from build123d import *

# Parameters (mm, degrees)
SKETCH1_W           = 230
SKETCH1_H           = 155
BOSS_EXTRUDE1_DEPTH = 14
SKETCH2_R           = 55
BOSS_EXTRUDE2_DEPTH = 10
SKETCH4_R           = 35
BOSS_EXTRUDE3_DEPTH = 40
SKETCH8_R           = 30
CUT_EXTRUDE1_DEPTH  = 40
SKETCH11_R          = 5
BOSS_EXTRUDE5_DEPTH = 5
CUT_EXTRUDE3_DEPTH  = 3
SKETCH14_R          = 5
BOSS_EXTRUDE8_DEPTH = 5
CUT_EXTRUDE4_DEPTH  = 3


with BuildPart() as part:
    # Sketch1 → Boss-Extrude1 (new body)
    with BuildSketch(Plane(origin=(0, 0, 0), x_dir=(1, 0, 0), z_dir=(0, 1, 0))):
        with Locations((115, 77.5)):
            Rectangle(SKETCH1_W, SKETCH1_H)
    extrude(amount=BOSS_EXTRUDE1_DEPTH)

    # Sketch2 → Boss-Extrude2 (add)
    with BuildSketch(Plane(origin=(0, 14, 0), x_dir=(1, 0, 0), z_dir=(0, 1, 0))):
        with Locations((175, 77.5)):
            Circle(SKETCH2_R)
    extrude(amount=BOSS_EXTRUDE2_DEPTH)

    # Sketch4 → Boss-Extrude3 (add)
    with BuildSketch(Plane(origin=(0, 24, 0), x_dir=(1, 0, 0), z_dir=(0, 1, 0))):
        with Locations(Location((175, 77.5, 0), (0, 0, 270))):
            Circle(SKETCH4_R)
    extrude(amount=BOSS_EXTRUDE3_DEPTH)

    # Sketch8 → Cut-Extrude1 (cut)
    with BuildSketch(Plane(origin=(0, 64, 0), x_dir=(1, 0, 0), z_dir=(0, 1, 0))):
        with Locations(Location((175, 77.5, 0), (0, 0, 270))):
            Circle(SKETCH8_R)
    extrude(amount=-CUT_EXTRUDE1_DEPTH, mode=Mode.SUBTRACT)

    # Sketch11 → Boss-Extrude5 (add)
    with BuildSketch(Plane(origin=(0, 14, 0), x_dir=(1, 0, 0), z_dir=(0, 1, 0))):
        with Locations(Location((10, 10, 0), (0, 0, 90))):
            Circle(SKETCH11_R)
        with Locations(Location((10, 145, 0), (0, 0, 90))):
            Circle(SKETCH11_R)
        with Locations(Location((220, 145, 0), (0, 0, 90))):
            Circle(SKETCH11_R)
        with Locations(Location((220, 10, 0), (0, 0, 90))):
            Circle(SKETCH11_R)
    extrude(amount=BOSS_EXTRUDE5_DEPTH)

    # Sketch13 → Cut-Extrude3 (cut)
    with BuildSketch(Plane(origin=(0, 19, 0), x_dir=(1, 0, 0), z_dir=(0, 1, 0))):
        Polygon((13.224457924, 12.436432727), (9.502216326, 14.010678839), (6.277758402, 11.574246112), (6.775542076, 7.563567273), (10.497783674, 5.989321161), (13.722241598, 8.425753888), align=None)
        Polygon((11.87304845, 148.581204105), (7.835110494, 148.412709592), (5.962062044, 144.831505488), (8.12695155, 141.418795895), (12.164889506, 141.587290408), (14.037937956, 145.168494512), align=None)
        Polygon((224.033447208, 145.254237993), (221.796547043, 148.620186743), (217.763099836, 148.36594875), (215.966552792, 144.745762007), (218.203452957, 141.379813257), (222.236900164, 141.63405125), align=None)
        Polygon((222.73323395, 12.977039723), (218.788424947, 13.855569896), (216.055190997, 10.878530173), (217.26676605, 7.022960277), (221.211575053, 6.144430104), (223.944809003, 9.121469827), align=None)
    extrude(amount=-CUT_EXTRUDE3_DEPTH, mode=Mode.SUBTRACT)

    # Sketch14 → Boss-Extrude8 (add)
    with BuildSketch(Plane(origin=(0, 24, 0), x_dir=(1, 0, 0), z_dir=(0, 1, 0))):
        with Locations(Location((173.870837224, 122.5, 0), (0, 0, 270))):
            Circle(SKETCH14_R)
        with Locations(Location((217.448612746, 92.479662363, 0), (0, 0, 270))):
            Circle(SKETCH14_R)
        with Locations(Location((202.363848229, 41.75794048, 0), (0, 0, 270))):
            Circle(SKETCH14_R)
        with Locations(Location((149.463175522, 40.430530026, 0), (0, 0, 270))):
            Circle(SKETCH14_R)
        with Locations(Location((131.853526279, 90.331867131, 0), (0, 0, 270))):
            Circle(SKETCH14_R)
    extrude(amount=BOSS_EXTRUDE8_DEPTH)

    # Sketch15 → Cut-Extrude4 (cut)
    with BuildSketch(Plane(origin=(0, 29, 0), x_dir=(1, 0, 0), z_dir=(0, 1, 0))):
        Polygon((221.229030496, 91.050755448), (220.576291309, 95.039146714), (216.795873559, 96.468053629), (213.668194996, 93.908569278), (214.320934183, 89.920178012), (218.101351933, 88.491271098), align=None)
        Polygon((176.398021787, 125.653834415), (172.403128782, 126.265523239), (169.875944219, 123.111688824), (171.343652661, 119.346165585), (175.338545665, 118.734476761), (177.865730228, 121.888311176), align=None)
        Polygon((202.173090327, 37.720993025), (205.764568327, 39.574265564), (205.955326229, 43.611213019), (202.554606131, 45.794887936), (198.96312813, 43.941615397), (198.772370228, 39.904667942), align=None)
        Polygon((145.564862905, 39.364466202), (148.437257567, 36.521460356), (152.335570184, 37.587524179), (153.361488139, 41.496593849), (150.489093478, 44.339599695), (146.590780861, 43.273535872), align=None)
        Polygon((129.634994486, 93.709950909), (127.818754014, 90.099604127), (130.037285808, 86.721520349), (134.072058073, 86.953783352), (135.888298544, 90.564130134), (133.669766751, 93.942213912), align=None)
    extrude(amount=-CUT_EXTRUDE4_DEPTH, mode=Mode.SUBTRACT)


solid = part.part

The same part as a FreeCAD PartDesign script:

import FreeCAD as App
import Part
import Sketcher
from FreeCAD import Vector
Q = App.Units.Quantity

doc = App.newDocument("Part")
params = doc.addObject("Spreadsheet::Sheet", "Params")
for row, (alias, value) in enumerate([
    ("sketch1_width", "230 mm"),
    ("sketch1_height", "155 mm"),
    ("pad1_length", "14 mm"),
    ("sketch2_diameter", "110 mm"),
    ("pad2_length", "10 mm"),
    ("sketch3_diameter", "70 mm"),
    ("pad3_length", "40 mm"),
    ("sketch4_diameter", "60 mm"),
    ("pocket1_length", "40 mm"),
    ("sketch5_diameter", "10 mm"),
    ("pad4_length", "5 mm"),
    ("pocket2_length", "3 mm"),
    ("sketch7_diameter", "10 mm"),
    ("pad5_length", "5 mm"),
    ("pocket3_length", "3 mm"),
], start=1):
    params.set(f"A{row}", alias)
    params.set(f"B{row}", "=" + value)
    params.setAlias(f"B{row}", alias)

body = doc.addObject("PartDesign::Body", "Body")

# Sketch on XZ plane
sketch1 = body.newObject("Sketcher::SketchObject", "Sketch")
sketch1.AttachmentSupport = (doc.getObject("XZ_Plane"), [""])
sketch1.MapMode = "FlatFace"
sketch1.addGeometry([
    Part.LineSegment(Vector(0, -155, 0), Vector(0, 0, 0)),
    Part.LineSegment(Vector(0, 0, 0), Vector(230, 0, 0)),
    Part.LineSegment(Vector(230, 0, 0), Vector(230, -155, 0)),
    Part.LineSegment(Vector(230, -155, 0), Vector(0, -155, 0)),
], False)
sketch1.addConstraint([
    Sketcher.Constraint("Coincident", 0, 2, 1, 1),
    Sketcher.Constraint("Coincident", 1, 2, 2, 1),
    Sketcher.Constraint("Coincident", 2, 2, 3, 1),
    Sketcher.Constraint("Coincident", 3, 2, 0, 1),
    Sketcher.Constraint("Vertical", 0),
    Sketcher.Constraint("Horizontal", 1),
    Sketcher.Constraint("Vertical", 2),
    Sketcher.Constraint("Horizontal", 3),
    Sketcher.Constraint("Coincident", 0, 2, -1, 1),
    Sketcher.Constraint("DistanceX", 1, 1, 1, 2, Q("230 mm")),
    Sketcher.Constraint("DistanceY", 0, 1, 0, 2, Q("155 mm")),
])
sketch1.setExpression("Constraints[9]", "Params.sketch1_width")
sketch1.setExpression("Constraints[10]", "Params.sketch1_height")
pad1 = body.newObject("PartDesign::Pad", "Pad")
pad1.Profile = sketch1
pad1.setExpression("Length", "Params.pad1_length")
pad1.Reversed = True

# Sketch on XZ plane
sketch2 = body.newObject("Sketcher::SketchObject", "Sketch001")
sketch2.AttachmentSupport = (doc.getObject("XZ_Plane"), [""])
sketch2.MapMode = "FlatFace"
sketch2.AttachmentOffset = App.Placement(Vector(0, 0, -14), App.Rotation())
sketch2.addGeometry(Part.Circle(Vector(175, -78, 0), Vector(0, 0, 1), 55), False)
sketch2.addConstraint([
    Sketcher.Constraint("Diameter", 0, Q("110 mm")),
    Sketcher.Constraint("DistanceX", -1, 1, 0, 3, Q("175 mm")),
    Sketcher.Constraint("DistanceY", 0, 3, -1, 1, Q("77.5 mm")),
])
sketch2.setExpression("Constraints[0]", "Params.sketch2_diameter")
pad2 = body.newObject("PartDesign::Pad", "Pad001")
pad2.Profile = sketch2
pad2.setExpression("Length", "Params.pad2_length")
pad2.Reversed = True

# Sketch on XZ plane
sketch3 = body.newObject("Sketcher::SketchObject", "Sketch002")
sketch3.AttachmentSupport = (doc.getObject("XZ_Plane"), [""])
sketch3.MapMode = "FlatFace"
sketch3.AttachmentOffset = App.Placement(Vector(0, 0, -24), App.Rotation())
sketch3.addGeometry(Part.Circle(Vector(175, -78, 0), Vector(0, 0, 1), 35), False)
sketch3.addConstraint([
    Sketcher.Constraint("Diameter", 0, Q("70 mm")),
    Sketcher.Constraint("DistanceX", -1, 1, 0, 3, Q("175 mm")),
    Sketcher.Constraint("DistanceY", 0, 3, -1, 1, Q("77.5 mm")),
])
sketch3.setExpression("Constraints[0]", "Params.sketch3_diameter")
pad3 = body.newObject("PartDesign::Pad", "Pad002")
pad3.Profile = sketch3
pad3.setExpression("Length", "Params.pad3_length")
pad3.Reversed = True

# Sketch on XZ plane
sketch4 = body.newObject("Sketcher::SketchObject", "Sketch003")
sketch4.AttachmentSupport = (doc.getObject("XZ_Plane"), [""])
sketch4.MapMode = "FlatFace"
sketch4.AttachmentOffset = App.Placement(Vector(0, 0, -64), App.Rotation())
sketch4.addGeometry(Part.Circle(Vector(175, -78, 0), Vector(0, 0, 1), 30), False)
sketch4.addConstraint([
    Sketcher.Constraint("Diameter", 0, Q("60 mm")),
    Sketcher.Constraint("DistanceX", -1, 1, 0, 3, Q("175 mm")),
    Sketcher.Constraint("DistanceY", 0, 3, -1, 1, Q("77.5 mm")),
])
sketch4.setExpression("Constraints[0]", "Params.sketch4_diameter")
pocket1 = body.newObject("PartDesign::Pocket", "Pocket")
pocket1.Profile = sketch4
pocket1.setExpression("Length", "Params.pocket1_length")
pocket1.Reversed = True

# Sketch on XZ plane
sketch5 = body.newObject("Sketcher::SketchObject", "Sketch004")
sketch5.AttachmentSupport = (doc.getObject("XZ_Plane"), [""])
sketch5.MapMode = "FlatFace"
sketch5.AttachmentOffset = App.Placement(Vector(0, 0, -14), App.Rotation())
sketch5.addGeometry([
    Part.Circle(Vector(10, -10, 0), Vector(0, 0, 1), 5),
    Part.Circle(Vector(10, -145, 0), Vector(0, 0, 1), 5),
    Part.Circle(Vector(220, -145, 0), Vector(0, 0, 1), 5),
    Part.Circle(Vector(220, -10, 0), Vector(0, 0, 1), 5),
], False)
sketch5.addConstraint([
    Sketcher.Constraint("Equal", 0, 1),
    Sketcher.Constraint("Equal", 1, 2),
    Sketcher.Constraint("Equal", 2, 3),
    Sketcher.Constraint("Horizontal", 1, 3, 2, 3),
    Sketcher.Constraint("Horizontal", 0, 3, 3, 3),
    Sketcher.Constraint("Vertical", 0, 3, 1, 3),
    Sketcher.Constraint("Vertical", 2, 3, 3, 3),
    Sketcher.Constraint("Diameter", 0, Q("10 mm")),
    Sketcher.Constraint("DistanceX", -1, 1, 0, 3, Q("10 mm")),
    Sketcher.Constraint("DistanceY", 0, 3, -1, 1, Q("10 mm")),
    Sketcher.Constraint("DistanceY", 1, 3, -1, 1, Q("145 mm")),
    Sketcher.Constraint("DistanceX", -1, 1, 2, 3, Q("220 mm")),
])
sketch5.setExpression("Constraints[7]", "Params.sketch5_diameter")
pad4 = body.newObject("PartDesign::Pad", "Pad003")
pad4.Profile = sketch5
pad4.setExpression("Length", "Params.pad4_length")
pad4.Reversed = True

# Sketch on XZ plane
sketch6 = body.newObject("Sketcher::SketchObject", "Sketch005")
sketch6.AttachmentSupport = (doc.getObject("XZ_Plane"), [""])
sketch6.MapMode = "FlatFace"
sketch6.AttachmentOffset = App.Placement(Vector(0, 0, -19), App.Rotation())
sketch6.addGeometry([
    Part.LineSegment(Vector(13.2, -12.4, 0), Vector(9.5, -14, 0)),  # 0
    Part.LineSegment(Vector(9.5, -14, 0), Vector(6.3, -11.6, 0)),  # 1
    Part.LineSegment(Vector(6.3, -11.6, 0), Vector(6.8, -7.6, 0)),  # 2
    Part.LineSegment(Vector(6.8, -7.6, 0), Vector(10.5, -6, 0)),  # 3
    Part.LineSegment(Vector(10.5, -6, 0), Vector(13.7, -8.4, 0)),  # 4
    Part.LineSegment(Vector(13.7, -8.4, 0), Vector(13.2, -12.4, 0)),  # 5
    Part.LineSegment(Vector(11.9, -148.6, 0), Vector(7.8, -148.4, 0)),  # 6
    Part.LineSegment(Vector(7.8, -148.4, 0), Vector(6, -144.8, 0)),  # 7
    Part.LineSegment(Vector(6, -144.8, 0), Vector(8.1, -141.4, 0)),  # 8
    Part.LineSegment(Vector(8.1, -141.4, 0), Vector(12.2, -141.6, 0)),  # 9
    Part.LineSegment(Vector(12.2, -141.6, 0), Vector(14, -145.2, 0)),  # 10
    Part.LineSegment(Vector(14, -145.2, 0), Vector(11.9, -148.6, 0)),  # 11
    Part.LineSegment(Vector(224, -145.3, 0), Vector(221.8, -148.6, 0)),  # 12
    Part.LineSegment(Vector(221.8, -148.6, 0), Vector(217.8, -148.4, 0)),  # 13
    Part.LineSegment(Vector(217.8, -148.4, 0), Vector(216, -144.7, 0)),  # 14
    Part.LineSegment(Vector(216, -144.7, 0), Vector(218.2, -141.4, 0)),  # 15
    Part.LineSegment(Vector(218.2, -141.4, 0), Vector(222.2, -141.6, 0)),  # 16
    Part.LineSegment(Vector(222.2, -141.6, 0), Vector(224, -145.3, 0)),  # 17
    Part.LineSegment(Vector(222.7, -13, 0), Vector(218.8, -13.9, 0)),  # 18
    Part.LineSegment(Vector(218.8, -13.9, 0), Vector(216.1, -10.9, 0)),  # 19
    Part.LineSegment(Vector(216.1, -10.9, 0), Vector(217.3, -7, 0)),  # 20
    Part.LineSegment(Vector(217.3, -7, 0), Vector(221.2, -6.1, 0)),  # 21
    Part.LineSegment(Vector(221.2, -6.1, 0), Vector(223.9, -9.1, 0)),  # 22
    Part.LineSegment(Vector(223.9, -9.1, 0), Vector(222.7, -13, 0)),  # 23
], False)
sketch6.addConstraint([
    Sketcher.Constraint("Coincident", 0, 2, 1, 1),
    Sketcher.Constraint("Coincident", 1, 2, 2, 1),
    Sketcher.Constraint("Coincident", 2, 2, 3, 1),
    Sketcher.Constraint("Coincident", 3, 2, 4, 1),
    Sketcher.Constraint("Coincident", 4, 2, 5, 1),
    Sketcher.Constraint("Coincident", 5, 2, 0, 1),
    Sketcher.Constraint("Coincident", 6, 2, 7, 1),
    Sketcher.Constraint("Coincident", 7, 2, 8, 1),
    Sketcher.Constraint("Coincident", 8, 2, 9, 1),
    Sketcher.Constraint("Coincident", 9, 2, 10, 1),
    Sketcher.Constraint("Coincident", 10, 2, 11, 1),
    Sketcher.Constraint("Coincident", 11, 2, 6, 1),
    Sketcher.Constraint("Coincident", 12, 2, 13, 1),
    Sketcher.Constraint("Coincident", 13, 2, 14, 1),
    Sketcher.Constraint("Coincident", 14, 2, 15, 1),
    Sketcher.Constraint("Coincident", 15, 2, 16, 1),
    Sketcher.Constraint("Coincident", 16, 2, 17, 1),
    Sketcher.Constraint("Coincident", 17, 2, 12, 1),
    Sketcher.Constraint("Coincident", 18, 2, 19, 1),
    Sketcher.Constraint("Coincident", 19, 2, 20, 1),
    Sketcher.Constraint("Coincident", 20, 2, 21, 1),
    Sketcher.Constraint("Coincident", 21, 2, 22, 1),
    Sketcher.Constraint("Coincident", 22, 2, 23, 1),
    Sketcher.Constraint("Coincident", 23, 2, 18, 1),
    Sketcher.Constraint("Parallel", 0, 3),
    Sketcher.Constraint("Parallel", 1, 4),
    Sketcher.Constraint("Parallel", 2, 5),
    Sketcher.Constraint("Parallel", 6, 9),
    Sketcher.Constraint("Parallel", 7, 10),
    Sketcher.Constraint("Parallel", 8, 11),
    Sketcher.Constraint("Parallel", 12, 15),
    Sketcher.Constraint("Parallel", 13, 16),
    Sketcher.Constraint("Parallel", 14, 17),
    Sketcher.Constraint("Parallel", 18, 21),
    Sketcher.Constraint("Parallel", 19, 22),
    Sketcher.Constraint("Parallel", 20, 23),
    Sketcher.Constraint("Equal", 0, 1),
    Sketcher.Constraint("Equal", 1, 2),
    Sketcher.Constraint("Equal", 2, 3),
    Sketcher.Constraint("Equal", 5, 6),
    Sketcher.Constraint("Equal", 6, 7),
    Sketcher.Constraint("Equal", 7, 8),
    Sketcher.Constraint("Equal", 8, 9),
    Sketcher.Constraint("Equal", 11, 12),
    Sketcher.Constraint("Equal", 12, 13),
    Sketcher.Constraint("Equal", 13, 14),
    Sketcher.Constraint("Equal", 14, 15),
    Sketcher.Constraint("Equal", 17, 18),
    Sketcher.Constraint("Equal", 18, 19),
    Sketcher.Constraint("Equal", 19, 20),
    Sketcher.Constraint("Equal", 20, 21),
    Sketcher.Constraint("DistanceX", -1, 1, 13, 2, Q("217.7631 mm")),
    Sketcher.Constraint("DistanceX", -1, 1, 16, 2, Q("222.2369 mm")),
    Sketcher.Constraint("DistanceX", 2, 2, 4, 2, Q("6.9467 mm")),
    Sketcher.Constraint("DistanceY", 10, 2, 8, 2, Q("3.749699 mm")),
    Sketcher.Constraint("DistanceX", 11, 2, 12, 2, Q("209.923499 mm")),
    Sketcher.Constraint("DistanceX", 14, 2, 15, 2, Q("2.2369 mm")),
    Sketcher.Constraint("DistanceY", 14, 2, 20, 2, Q("137.722802 mm")),
    Sketcher.Constraint("DistanceY", 19, 2, 21, 2, Q("4.7341 mm")),
    Sketcher.Constraint("Distance", 0, Q("4.041452 mm")),
    Sketcher.Constraint("DistanceY", 0, 2, -1, 1, Q("14.010679 mm")),
    Sketcher.Constraint("DistanceX", -1, 1, 1, 2, Q("6.277758 mm")),
    Sketcher.Constraint("DistanceY", 3, 2, -1, 1, Q("5.989321 mm")),
    Sketcher.Constraint("DistanceX", -1, 1, 4, 2, Q("13.722242 mm")),
    Sketcher.Constraint("DistanceX", -1, 1, 6, 2, Q("7.83511 mm")),
    Sketcher.Constraint("DistanceY", 6, 2, -1, 1, Q("148.41271 mm")),
    Sketcher.Constraint("DistanceX", -1, 1, 8, 2, Q("8.126952 mm")),
    Sketcher.Constraint("DistanceX", -1, 1, 9, 2, Q("12.16489 mm")),
    Sketcher.Constraint("DistanceY", 13, 2, -1, 1, Q("148.365949 mm")),
    Sketcher.Constraint("DistanceY", 18, 2, -1, 1, Q("13.85557 mm")),
    Sketcher.Constraint("DistanceX", -1, 1, 19, 2, Q("216.055191 mm")),
    Sketcher.Constraint("DistanceY", 19, 2, -1, 1, Q("10.87853 mm")),
])
pocket2 = body.newObject("PartDesign::Pocket", "Pocket001")
pocket2.Profile = sketch6
pocket2.setExpression("Length", "Params.pocket2_length")
pocket2.Reversed = True

# Sketch on XZ plane
sketch7 = body.newObject("Sketcher::SketchObject", "Sketch006")
sketch7.AttachmentSupport = (doc.getObject("XZ_Plane"), [""])
sketch7.MapMode = "FlatFace"
sketch7.AttachmentOffset = App.Placement(Vector(0, 0, -24), App.Rotation())
sketch7.addGeometry([
    Part.Circle(Vector(174, -122, 0), Vector(0, 0, 1), 5),  # 0
    Part.Circle(Vector(217, -92, 0), Vector(0, 0, 1), 5),  # 1
    Part.Circle(Vector(202, -42, 0), Vector(0, 0, 1), 5),  # 2
    Part.Circle(Vector(149, -40, 0), Vector(0, 0, 1), 5),  # 3
    Part.Circle(Vector(132, -90, 0), Vector(0, 0, 1), 5),  # 4
], False)
sketch7.addConstraint([
    Sketcher.Constraint("Equal", 0, 1),
    Sketcher.Constraint("Equal", 1, 2),
    Sketcher.Constraint("Equal", 2, 3),
    Sketcher.Constraint("Equal", 3, 4),
    Sketcher.Constraint("Diameter", 0, Q("10 mm")),
    Sketcher.Constraint("DistanceY", 0, 3, -1, 1, Q("122.5 mm")),
    Sketcher.Constraint("DistanceX", -1, 1, 2, 3, Q("202.363848 mm")),
    Sketcher.Constraint("DistanceY", 2, 3, -1, 1, Q("41.75794 mm")),
    Sketcher.Constraint("DistanceY", 3, 3, -1, 1, Q("40.43053 mm")),
    Sketcher.Constraint("DistanceY", 1, 3, 2, 3, Q("50.721722 mm")),
    Sketcher.Constraint("DistanceX", 0, 3, 2, 3, Q("28.493011 mm")),
    Sketcher.Constraint("DistanceX", 3, 3, 0, 3, Q("24.407662 mm")),
    Sketcher.Constraint("DistanceX", 4, 3, 0, 3, Q("42.017311 mm")),
    Sketcher.Constraint("DistanceX", -1, 1, 1, 3, Q("217.448613 mm")),
    Sketcher.Constraint("DistanceY", 4, 3, -1, 1, Q("90.331867 mm")),
])
sketch7.setExpression("Constraints[4]", "Params.sketch7_diameter")
pad5 = body.newObject("PartDesign::Pad", "Pad004")
pad5.Profile = sketch7
pad5.setExpression("Length", "Params.pad5_length")
pad5.Reversed = True

# Sketch on XZ plane
sketch8 = body.newObject("Sketcher::SketchObject", "Sketch007")
sketch8.AttachmentSupport = (doc.getObject("XZ_Plane"), [""])
sketch8.MapMode = "FlatFace"
sketch8.AttachmentOffset = App.Placement(Vector(0, 0, -29), App.Rotation())
sketch8.addGeometry([
    Part.LineSegment(Vector(221.2, -91.1, 0), Vector(220.6, -95, 0)),  # 0
    Part.LineSegment(Vector(220.6, -95, 0), Vector(216.8, -96.5, 0)),  # 1
    Part.LineSegment(Vector(216.8, -96.5, 0), Vector(213.7, -93.9, 0)),  # 2
    Part.LineSegment(Vector(213.7, -93.9, 0), Vector(214.3, -89.9, 0)),  # 3
    Part.LineSegment(Vector(214.3, -89.9, 0), Vector(218.1, -88.5, 0)),  # 4
    Part.LineSegment(Vector(218.1, -88.5, 0), Vector(221.2, -91.1, 0)),  # 5
    Part.LineSegment(Vector(176.4, -125.7, 0), Vector(172.4, -126.3, 0)),  # 6
    Part.LineSegment(Vector(172.4, -126.3, 0), Vector(169.9, -123.1, 0)),  # 7
    Part.LineSegment(Vector(169.9, -123.1, 0), Vector(171.3, -119.3, 0)),  # 8
    Part.LineSegment(Vector(171.3, -119.3, 0), Vector(175.3, -118.7, 0)),  # 9
    Part.LineSegment(Vector(175.3, -118.7, 0), Vector(177.9, -121.9, 0)),  # 10
    Part.LineSegment(Vector(177.9, -121.9, 0), Vector(176.4, -125.7, 0)),  # 11
    Part.LineSegment(Vector(202.2, -37.7, 0), Vector(205.8, -39.6, 0)),  # 12
    Part.LineSegment(Vector(205.8, -39.6, 0), Vector(206, -43.6, 0)),  # 13
    Part.LineSegment(Vector(206, -43.6, 0), Vector(202.6, -45.8, 0)),  # 14
    Part.LineSegment(Vector(202.6, -45.8, 0), Vector(199, -43.9, 0)),  # 15
    Part.LineSegment(Vector(199, -43.9, 0), Vector(198.8, -39.9, 0)),  # 16
    Part.LineSegment(Vector(198.8, -39.9, 0), Vector(202.2, -37.7, 0)),  # 17
    Part.LineSegment(Vector(145.6, -39.4, 0), Vector(148.4, -36.5, 0)),  # 18
    Part.LineSegment(Vector(148.4, -36.5, 0), Vector(152.3, -37.6, 0)),  # 19
    Part.LineSegment(Vector(152.3, -37.6, 0), Vector(153.4, -41.5, 0)),  # 20
    Part.LineSegment(Vector(153.4, -41.5, 0), Vector(150.5, -44.3, 0)),  # 21
    Part.LineSegment(Vector(150.5, -44.3, 0), Vector(146.6, -43.3, 0)),  # 22
    Part.LineSegment(Vector(146.6, -43.3, 0), Vector(145.6, -39.4, 0)),  # 23
    Part.LineSegment(Vector(129.6, -93.7, 0), Vector(127.8, -90.1, 0)),  # 24
    Part.LineSegment(Vector(127.8, -90.1, 0), Vector(130, -86.7, 0)),  # 25
    Part.LineSegment(Vector(130, -86.7, 0), Vector(134.1, -87, 0)),  # 26
    Part.LineSegment(Vector(134.1, -87, 0), Vector(135.9, -90.6, 0)),  # 27
    Part.LineSegment(Vector(135.9, -90.6, 0), Vector(133.7, -93.9, 0)),  # 28
    Part.LineSegment(Vector(133.7, -93.9, 0), Vector(129.6, -93.7, 0)),  # 29
], False)
sketch8.addConstraint([
    Sketcher.Constraint("Coincident", 0, 2, 1, 1),
    Sketcher.Constraint("Coincident", 1, 2, 2, 1),
    Sketcher.Constraint("Coincident", 2, 2, 3, 1),
    Sketcher.Constraint("Coincident", 3, 2, 4, 1),
    Sketcher.Constraint("Coincident", 4, 2, 5, 1),
    Sketcher.Constraint("Coincident", 5, 2, 0, 1),
    Sketcher.Constraint("Coincident", 6, 2, 7, 1),
    Sketcher.Constraint("Coincident", 7, 2, 8, 1),
    Sketcher.Constraint("Coincident", 8, 2, 9, 1),
    Sketcher.Constraint("Coincident", 9, 2, 10, 1),
    Sketcher.Constraint("Coincident", 10, 2, 11, 1),
    Sketcher.Constraint("Coincident", 11, 2, 6, 1),
    Sketcher.Constraint("Coincident", 12, 2, 13, 1),
    Sketcher.Constraint("Coincident", 13, 2, 14, 1),
    Sketcher.Constraint("Coincident", 14, 2, 15, 1),
    Sketcher.Constraint("Coincident", 15, 2, 16, 1),
    Sketcher.Constraint("Coincident", 16, 2, 17, 1),
    Sketcher.Constraint("Coincident", 17, 2, 12, 1),
    Sketcher.Constraint("Coincident", 18, 2, 19, 1),
    Sketcher.Constraint("Coincident", 19, 2, 20, 1),
    Sketcher.Constraint("Coincident", 20, 2, 21, 1),
    Sketcher.Constraint("Coincident", 21, 2, 22, 1),
    Sketcher.Constraint("Coincident", 22, 2, 23, 1),
    Sketcher.Constraint("Coincident", 23, 2, 18, 1),
    Sketcher.Constraint("Coincident", 24, 2, 25, 1),
    Sketcher.Constraint("Coincident", 25, 2, 26, 1),
    Sketcher.Constraint("Coincident", 26, 2, 27, 1),
    Sketcher.Constraint("Coincident", 27, 2, 28, 1),
    Sketcher.Constraint("Coincident", 28, 2, 29, 1),
    Sketcher.Constraint("Coincident", 29, 2, 24, 1),
    Sketcher.Constraint("Parallel", 0, 3),
    Sketcher.Constraint("Parallel", 1, 4),
    Sketcher.Constraint("Parallel", 2, 5),
    Sketcher.Constraint("Parallel", 6, 9),
    Sketcher.Constraint("Parallel", 7, 10),
    Sketcher.Constraint("Parallel", 8, 11),
    Sketcher.Constraint("Parallel", 12, 15),
    Sketcher.Constraint("Parallel", 13, 16),
    Sketcher.Constraint("Parallel", 14, 17),
    Sketcher.Constraint("Parallel", 18, 21),
    Sketcher.Constraint("Parallel", 19, 22),
    Sketcher.Constraint("Parallel", 20, 23),
    Sketcher.Constraint("Parallel", 24, 27),
    Sketcher.Constraint("Parallel", 25, 28),
    Sketcher.Constraint("Parallel", 26, 29),
    Sketcher.Constraint("Equal", 0, 1),
    Sketcher.Constraint("Equal", 1, 2),
    Sketcher.Constraint("Equal", 2, 3),
    Sketcher.Constraint("Equal", 5, 6),
    Sketcher.Constraint("Equal", 6, 7),
    Sketcher.Constraint("Equal", 7, 8),
    Sketcher.Constraint("Equal", 8, 9),
    Sketcher.Constraint("Equal", 11, 12),
    Sketcher.Constraint("Equal", 12, 13),
    Sketcher.Constraint("Equal", 13, 14),
    Sketcher.Constraint("Equal", 14, 15),
    Sketcher.Constraint("Equal", 17, 18),
    Sketcher.Constraint("Equal", 18, 19),
    Sketcher.Constraint("Equal", 19, 20),
    Sketcher.Constraint("Equal", 20, 21),
    Sketcher.Constraint("Equal", 23, 24),
    Sketcher.Constraint("Equal", 24, 25),
    Sketcher.Constraint("Equal", 25, 26),
    Sketcher.Constraint("Equal", 26, 27),
    Sketcher.Constraint("DistanceY", 21, 2, -1, 1, Q("44.3396 mm")),
    Sketcher.Constraint("DistanceX", -1, 1, 27, 2, Q("135.888299 mm")),
    Sketcher.Constraint("DistanceY", 2, 2, 4, 2, Q("5.417298 mm")),
    Sketcher.Constraint("DistanceX", 7, 2, 9, 2, Q("5.462601 mm")),
    Sketcher.Constraint("DistanceX", 15, 2, 13, 2, Q("6.992198 mm")),
    Sketcher.Constraint("DistanceX", 19, 2, 16, 2, Q("46.4368 mm")),
    Sketcher.Constraint("DistanceY", 20, 2, 17, 2, Q("3.775601 mm")),
    Sketcher.Constraint("DistanceX", 24, 2, 8, 2, Q("43.524899 mm")),
    Sketcher.Constraint("Distance", 0, Q("4.041452 mm")),
    Sketcher.Constraint("DistanceX", -1, 1, 0, 2, Q("220.576291 mm")),
    Sketcher.Constraint("DistanceY", 2, 2, -1, 1, Q("93.908569 mm")),
    Sketcher.Constraint("DistanceY", 3, 2, -1, 1, Q("89.920178 mm")),
    Sketcher.Constraint("DistanceX", -1, 1, 4, 2, Q("218.101352 mm")),
    Sketcher.Constraint("DistanceX", -1, 1, 6, 2, Q("172.403129 mm")),
    Sketcher.Constraint("DistanceY", 7, 2, -1, 1, Q("123.111689 mm")),
    Sketcher.Constraint("DistanceY", 10, 2, -1, 1, Q("121.888311 mm")),
    Sketcher.Constraint("DistanceX", -1, 1, 11, 2, Q("176.398022 mm")),
    Sketcher.Constraint("DistanceX", -1, 1, 12, 2, Q("205.764568 mm")),
    Sketcher.Constraint("DistanceX", -1, 1, 15, 2, Q("198.963128 mm")),
    Sketcher.Constraint("DistanceX", -1, 1, 17, 2, Q("202.17309 mm")),
    Sketcher.Constraint("DistanceY", 18, 2, -1, 1, Q("36.52146 mm")),
    Sketcher.Constraint("DistanceX", -1, 1, 20, 2, Q("153.361488 mm")),
    Sketcher.Constraint("DistanceX", -1, 1, 22, 2, Q("146.590781 mm")),
    Sketcher.Constraint("DistanceY", 25, 2, -1, 1, Q("86.72152 mm")),
    Sketcher.Constraint("DistanceX", -1, 1, 26, 2, Q("134.072058 mm")),
    Sketcher.Constraint("DistanceY", 27, 2, -1, 1, Q("90.56413 mm")),
])
pocket3 = body.newObject("PartDesign::Pocket", "Pocket002")
pocket3.Profile = sketch8
pocket3.setExpression("Length", "Params.pocket3_length")
pocket3.Reversed = True

doc.recompute()
